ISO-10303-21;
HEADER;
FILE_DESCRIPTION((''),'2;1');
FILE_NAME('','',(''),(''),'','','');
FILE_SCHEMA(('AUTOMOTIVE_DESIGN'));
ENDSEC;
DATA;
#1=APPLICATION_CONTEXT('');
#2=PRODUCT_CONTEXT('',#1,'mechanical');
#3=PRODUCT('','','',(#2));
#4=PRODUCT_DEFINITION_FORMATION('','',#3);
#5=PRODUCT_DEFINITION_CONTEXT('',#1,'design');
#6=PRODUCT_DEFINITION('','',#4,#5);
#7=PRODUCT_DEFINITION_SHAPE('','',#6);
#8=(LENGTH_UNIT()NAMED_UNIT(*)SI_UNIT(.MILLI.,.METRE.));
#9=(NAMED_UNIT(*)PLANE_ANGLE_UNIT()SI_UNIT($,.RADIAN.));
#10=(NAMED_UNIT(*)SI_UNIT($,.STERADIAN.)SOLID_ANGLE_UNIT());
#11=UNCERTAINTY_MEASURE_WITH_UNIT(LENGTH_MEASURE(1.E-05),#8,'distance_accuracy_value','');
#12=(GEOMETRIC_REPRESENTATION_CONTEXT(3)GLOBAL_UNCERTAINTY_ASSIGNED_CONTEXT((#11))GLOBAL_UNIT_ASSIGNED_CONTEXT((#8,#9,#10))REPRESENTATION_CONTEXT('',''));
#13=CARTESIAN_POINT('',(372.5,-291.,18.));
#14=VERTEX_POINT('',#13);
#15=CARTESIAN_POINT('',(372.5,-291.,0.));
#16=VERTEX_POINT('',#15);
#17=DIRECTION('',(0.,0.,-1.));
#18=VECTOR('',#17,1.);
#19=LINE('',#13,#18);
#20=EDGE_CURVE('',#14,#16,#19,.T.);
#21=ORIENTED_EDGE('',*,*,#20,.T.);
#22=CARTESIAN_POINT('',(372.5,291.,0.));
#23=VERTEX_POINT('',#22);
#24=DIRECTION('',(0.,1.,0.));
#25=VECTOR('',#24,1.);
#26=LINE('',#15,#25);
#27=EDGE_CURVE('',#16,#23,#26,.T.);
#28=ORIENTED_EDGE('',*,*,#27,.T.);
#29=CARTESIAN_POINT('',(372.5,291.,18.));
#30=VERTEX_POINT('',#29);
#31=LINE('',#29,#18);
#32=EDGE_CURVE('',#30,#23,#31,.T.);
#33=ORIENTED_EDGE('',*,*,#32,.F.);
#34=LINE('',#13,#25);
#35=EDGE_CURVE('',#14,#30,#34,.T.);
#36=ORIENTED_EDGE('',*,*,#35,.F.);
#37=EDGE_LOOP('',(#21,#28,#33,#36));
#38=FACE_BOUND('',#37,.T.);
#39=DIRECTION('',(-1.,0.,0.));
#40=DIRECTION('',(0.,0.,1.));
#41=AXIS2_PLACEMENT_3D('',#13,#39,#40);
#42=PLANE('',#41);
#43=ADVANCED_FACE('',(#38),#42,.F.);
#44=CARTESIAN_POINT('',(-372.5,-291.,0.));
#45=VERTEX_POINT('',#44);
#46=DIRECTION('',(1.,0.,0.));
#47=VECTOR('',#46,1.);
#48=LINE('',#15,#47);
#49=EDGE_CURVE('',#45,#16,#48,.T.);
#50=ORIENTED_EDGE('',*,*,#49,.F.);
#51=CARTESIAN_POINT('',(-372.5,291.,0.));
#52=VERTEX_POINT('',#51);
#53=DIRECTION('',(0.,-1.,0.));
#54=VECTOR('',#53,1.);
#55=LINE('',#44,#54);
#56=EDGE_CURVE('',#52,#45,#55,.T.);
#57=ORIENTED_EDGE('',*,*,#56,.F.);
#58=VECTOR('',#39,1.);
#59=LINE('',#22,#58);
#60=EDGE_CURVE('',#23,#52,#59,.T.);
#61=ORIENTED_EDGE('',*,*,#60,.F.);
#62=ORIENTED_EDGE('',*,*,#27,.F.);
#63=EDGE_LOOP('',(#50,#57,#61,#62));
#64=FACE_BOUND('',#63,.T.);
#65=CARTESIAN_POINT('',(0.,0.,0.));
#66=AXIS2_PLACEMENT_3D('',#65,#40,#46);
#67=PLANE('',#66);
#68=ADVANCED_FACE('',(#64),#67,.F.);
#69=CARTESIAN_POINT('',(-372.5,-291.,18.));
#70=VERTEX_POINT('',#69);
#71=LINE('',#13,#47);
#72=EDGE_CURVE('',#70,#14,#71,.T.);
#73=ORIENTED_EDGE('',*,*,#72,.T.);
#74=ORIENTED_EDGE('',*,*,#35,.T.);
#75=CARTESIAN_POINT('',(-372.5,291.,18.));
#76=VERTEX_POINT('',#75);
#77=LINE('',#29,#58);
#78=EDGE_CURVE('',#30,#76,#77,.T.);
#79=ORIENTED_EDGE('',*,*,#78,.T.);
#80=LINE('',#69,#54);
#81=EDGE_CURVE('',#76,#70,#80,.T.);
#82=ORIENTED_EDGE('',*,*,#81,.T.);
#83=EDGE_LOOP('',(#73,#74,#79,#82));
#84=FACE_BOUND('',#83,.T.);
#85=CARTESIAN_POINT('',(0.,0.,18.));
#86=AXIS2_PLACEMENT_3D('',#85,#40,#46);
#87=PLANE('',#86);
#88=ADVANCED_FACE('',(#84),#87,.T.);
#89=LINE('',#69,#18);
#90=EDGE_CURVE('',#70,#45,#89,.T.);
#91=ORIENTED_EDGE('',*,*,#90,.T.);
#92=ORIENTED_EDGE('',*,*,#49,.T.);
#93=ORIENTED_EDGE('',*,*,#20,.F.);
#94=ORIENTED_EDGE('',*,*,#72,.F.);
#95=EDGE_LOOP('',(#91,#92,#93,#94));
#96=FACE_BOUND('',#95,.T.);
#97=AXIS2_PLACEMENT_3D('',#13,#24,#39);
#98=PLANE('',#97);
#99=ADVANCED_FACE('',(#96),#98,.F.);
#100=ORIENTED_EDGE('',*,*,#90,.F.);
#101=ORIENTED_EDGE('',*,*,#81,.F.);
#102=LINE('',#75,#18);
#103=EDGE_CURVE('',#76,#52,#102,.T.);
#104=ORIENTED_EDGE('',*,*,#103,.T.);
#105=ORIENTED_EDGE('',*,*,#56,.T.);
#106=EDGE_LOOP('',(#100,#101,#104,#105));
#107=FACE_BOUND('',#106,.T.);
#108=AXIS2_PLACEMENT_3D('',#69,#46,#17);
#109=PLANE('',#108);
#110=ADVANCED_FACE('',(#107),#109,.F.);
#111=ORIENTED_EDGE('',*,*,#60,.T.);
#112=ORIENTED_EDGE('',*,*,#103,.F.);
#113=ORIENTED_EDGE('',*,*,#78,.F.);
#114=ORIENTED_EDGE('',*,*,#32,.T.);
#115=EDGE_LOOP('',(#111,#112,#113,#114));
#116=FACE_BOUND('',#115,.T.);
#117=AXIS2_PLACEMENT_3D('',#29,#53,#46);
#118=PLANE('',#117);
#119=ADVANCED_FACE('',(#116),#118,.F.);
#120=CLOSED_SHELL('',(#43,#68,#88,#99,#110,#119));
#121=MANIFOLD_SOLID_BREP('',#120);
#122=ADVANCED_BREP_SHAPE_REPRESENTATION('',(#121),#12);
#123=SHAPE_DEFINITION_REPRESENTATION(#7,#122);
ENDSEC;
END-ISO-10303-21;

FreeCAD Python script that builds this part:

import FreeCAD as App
import Part
import Sketcher
from FreeCAD import Vector
Q = App.Units.Quantity


def add_polygon(sketch, points):
    """Adds a closed chain of lines whose ends are joined by coincident constraints."""
    first, n = sketch.GeometryCount, len(points)
    for a, b in zip(points, points[1:] + points[:1]):
        sketch.addGeometry(Part.LineSegment(App.Vector(*a, 0), App.Vector(*b, 0)), False)
    for i in range(n):
        sketch.addConstraint(Sketcher.Constraint("Coincident", first + i, 2, first + (i + 1) % n, 1))

doc = App.newDocument("Part")
params = doc.addObject("Spreadsheet::Sheet", "Params")
for row, (alias, value) in enumerate([
    ("sketch1_width", "745 mm"),
    ("sketch1_height", "582 mm"),
    ("pad1_length", "18 mm"),
], start=1):
    params.set(f"A{row}", alias)
    params.set(f"B{row}", "=" + value)
    params.setAlias(f"B{row}", alias)

body = doc.addObject("PartDesign::Body", "Body")

sketch1 = body.newObject("Sketcher::SketchObject", "Sketch")
sketch1.AttachmentSupport = (doc.getObject("XY_Plane"), [""])
sketch1.MapMode = "FlatFace"
add_polygon(sketch1, [(-372, 291), (-372, -291), (372, -291), (372, 291)])
sketch1.addConstraint([
    Sketcher.Constraint("Vertical", 0),
    Sketcher.Constraint("Horizontal", 1),
    Sketcher.Constraint("Vertical", 2),
    Sketcher.Constraint("Horizontal", 3),
    Sketcher.Constraint("Symmetric", 0, 2, 2, 2, -1, 1),
    Sketcher.Constraint("DistanceX", 1, 1, 1, 2, Q("745 mm")),
    Sketcher.Constraint("DistanceY", 0, 2, 0, 1, Q("582 mm")),
])
sketch1.setExpression("Constraints[9]", "Params.sketch1_width")
sketch1.setExpression("Constraints[10]", "Params.sketch1_height")
pad1 = body.newObject("PartDesign::Pad", "Pad")
pad1.Profile = sketch1
pad1.setExpression("Length", "Params.pad1_length")

doc.recompute()
